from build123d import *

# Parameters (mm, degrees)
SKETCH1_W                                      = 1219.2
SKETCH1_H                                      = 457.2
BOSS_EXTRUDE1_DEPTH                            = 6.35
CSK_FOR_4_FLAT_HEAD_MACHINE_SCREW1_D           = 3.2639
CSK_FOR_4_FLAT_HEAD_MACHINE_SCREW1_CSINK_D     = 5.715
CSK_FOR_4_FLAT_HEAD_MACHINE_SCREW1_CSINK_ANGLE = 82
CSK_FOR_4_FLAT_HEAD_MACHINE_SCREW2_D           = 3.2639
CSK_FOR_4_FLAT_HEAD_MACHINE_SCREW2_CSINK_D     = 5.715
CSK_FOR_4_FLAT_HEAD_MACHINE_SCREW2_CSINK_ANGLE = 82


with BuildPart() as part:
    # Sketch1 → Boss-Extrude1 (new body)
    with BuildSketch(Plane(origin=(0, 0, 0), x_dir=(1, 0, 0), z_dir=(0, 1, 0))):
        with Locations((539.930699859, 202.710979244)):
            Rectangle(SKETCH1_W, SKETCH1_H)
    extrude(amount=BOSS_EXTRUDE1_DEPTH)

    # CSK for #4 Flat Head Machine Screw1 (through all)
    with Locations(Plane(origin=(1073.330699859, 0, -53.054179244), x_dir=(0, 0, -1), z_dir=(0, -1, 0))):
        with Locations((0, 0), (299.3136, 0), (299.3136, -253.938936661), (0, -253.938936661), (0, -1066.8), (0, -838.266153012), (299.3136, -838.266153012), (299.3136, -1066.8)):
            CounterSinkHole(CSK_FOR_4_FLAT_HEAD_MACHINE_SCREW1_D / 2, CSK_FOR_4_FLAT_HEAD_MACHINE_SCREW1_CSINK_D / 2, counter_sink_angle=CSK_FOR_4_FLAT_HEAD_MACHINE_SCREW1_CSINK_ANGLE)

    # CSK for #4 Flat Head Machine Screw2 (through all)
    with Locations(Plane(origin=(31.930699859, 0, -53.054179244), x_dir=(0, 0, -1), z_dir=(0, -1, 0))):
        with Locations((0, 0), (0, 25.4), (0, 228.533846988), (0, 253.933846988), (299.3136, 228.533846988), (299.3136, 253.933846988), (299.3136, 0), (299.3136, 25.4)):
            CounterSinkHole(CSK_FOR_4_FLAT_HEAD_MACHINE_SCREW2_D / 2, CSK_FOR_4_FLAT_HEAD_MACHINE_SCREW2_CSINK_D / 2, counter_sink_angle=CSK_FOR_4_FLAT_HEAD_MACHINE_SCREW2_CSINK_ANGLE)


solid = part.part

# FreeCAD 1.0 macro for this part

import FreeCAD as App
import Part
import Sketcher
Q = App.Units.Quantity

doc = App.newDocument("Part")
body = doc.addObject("PartDesign::Body", "Body")

# Sketch on XZ plane
sketch1 = body.newObject("Sketcher::SketchObject", "Sketch")
sketch1.AttachmentSupport = (doc.getObject("XZ_Plane"), [""])
sketch1.MapMode = "FlatFace"
sketch1.addGeometry(Part.LineSegment(App.Vector(-69.6693, -431.310979, 0), App.Vector(-69.6693, 25.889021, 0)), False)
sketch1.addGeometry(Part.LineSegment(App.Vector(-69.6693, 25.889021, 0), App.Vector(1149.5307, 25.889021, 0)), False)
sketch1.addGeometry(Part.LineSegment(App.Vector(1149.5307, 25.889021, 0), App.Vector(1149.5307, -431.310979, 0)), False)
sketch1.addGeometry(Part.LineSegment(App.Vector(1149.5307, -431.310979, 0), App.Vector(-69.6693, -431.310979, 0)), False)
sketch1.addConstraint(Sketcher.Constraint("Coincident", 0, 2, 1, 1))
sketch1.addConstraint(Sketcher.Constraint("Coincident", 1, 2, 2, 1))
sketch1.addConstraint(Sketcher.Constraint("Coincident", 2, 2, 3, 1))
sketch1.addConstraint(Sketcher.Constraint("Coincident", 3, 2, 0, 1))
sketch1.addConstraint(Sketcher.Constraint("Vertical", 0))
sketch1.addConstraint(Sketcher.Constraint("Horizontal", 1))
sketch1.addConstraint(Sketcher.Constraint("Vertical", 2))
sketch1.addConstraint(Sketcher.Constraint("Horizontal", 3))
sketch1.addConstraint(Sketcher.Constraint("DistanceX", 1, 1, 1, 2, Q("48 in")))
sketch1.addConstraint(Sketcher.Constraint("DistanceY", 0, 1, 0, 2, Q("18 in")))
sketch1.addConstraint(Sketcher.Constraint("DistanceX", 0, 2, -1, 1, Q("69.6693 mm")))
sketch1.addConstraint(Sketcher.Constraint("DistanceY", -1, 1, 0, 2, Q("25.889021 mm")))
pad1 = body.newObject("PartDesign::Pad", "Pad")
pad1.Profile = sketch1
pad1.Length = Q("0.25 in")
pad1.Reversed = True

# Sketch on XZ plane
sketch2 = body.newObject("Sketcher::SketchObject", "Sketch001")
sketch2.AttachmentSupport = (doc.getObject("XZ_Plane"), [""])
sketch2.MapMode = "FlatFace"
sketch2.addGeometry(Part.Circle(App.Vector(1073.3307, -53.054179, 0), App.Vector(0, 0, 1), 1.63195), False)
sketch2.addGeometry(Part.Circle(App.Vector(1073.3307, -352.367779, 0), App.Vector(0, 0, 1), 1.63195), False)
sketch2.addGeometry(Part.Circle(App.Vector(819.391763, -352.367779, 0), App.Vector(0, 0, 1), 1.63195), False)
sketch2.addGeometry(Part.Circle(App.Vector(819.391763, -53.054179, 0), App.Vector(0, 0, 1), 1.63195), False)
sketch2.addGeometry(Part.Circle(App.Vector(6.5307, -53.054179, 0), App.Vector(0, 0, 1), 1.63195), False)
sketch2.addGeometry(Part.Circle(App.Vector(235.064547, -53.054179, 0), App.Vector(0, 0, 1), 1.63195), False)
sketch2.addGeometry(Part.Circle(App.Vector(235.064547, -352.367779, 0), App.Vector(0, 0, 1), 1.63195), False)
sketch2.addGeometry(Part.Circle(App.Vector(6.5307, -352.367779, 0), App.Vector(0, 0, 1), 1.63195), False)
sketch2.addConstraint(Sketcher.Constraint("Equal", 0, 1))
sketch2.addConstraint(Sketcher.Constraint("Equal", 1, 2))
sketch2.addConstraint(Sketcher.Constraint("Equal", 2, 3))
sketch2.addConstraint(Sketcher.Constraint("Equal", 3, 4))
sketch2.addConstraint(Sketcher.Constraint("Equal", 4, 5))
sketch2.addConstraint(Sketcher.Constraint("Equal", 5, 6))
sketch2.addConstraint(Sketcher.Constraint("Equal", 6, 7))
sketch2.addConstraint(Sketcher.Constraint("Horizontal", 1, 3, 2, 3))
sketch2.addConstraint(Sketcher.Constraint("Horizontal", 0, 3, 3, 3))
sketch2.addConstraint(Sketcher.Constraint("Horizontal", 3, 3, 4, 3))
sketch2.addConstraint(Sketcher.Constraint("Horizontal", 4, 3, 5, 3))
sketch2.addConstraint(Sketcher.Constraint("Horizontal", 2, 3, 6, 3))
sketch2.addConstraint(Sketcher.Constraint("Horizontal", 6, 3, 7, 3))
sketch2.addConstraint(Sketcher.Constraint("Vertical", 0, 3, 1, 3))
sketch2.addConstraint(Sketcher.Constraint("Vertical", 2, 3, 3, 3))
sketch2.addConstraint(Sketcher.Constraint("Vertical", 5, 3, 6, 3))
sketch2.addConstraint(Sketcher.Constraint("Vertical", 4, 3, 7, 3))
sketch2.addConstraint(Sketcher.Constraint("DistanceX", 4, 3, 0, 3, Q("42 in")))
sketch2.addConstraint(Sketcher.Constraint("Diameter", 0, Q("0.1285 in")))
sketch2.addConstraint(Sketcher.Constraint("DistanceY", 1, 3, 0, 3, Q("11.784 in")))
sketch2.addConstraint(Sketcher.Constraint("DistanceX", -1, 1, 0, 3, Q("1073.3307 mm")))
sketch2.addConstraint(Sketcher.Constraint("DistanceY", 0, 3, -1, 1, Q("53.054179 mm")))
sketch2.addConstraint(Sketcher.Constraint("DistanceX", -1, 1, 2, 3, Q("819.391763 mm")))
sketch2.addConstraint(Sketcher.Constraint("DistanceX", -1, 1, 5, 3, Q("235.064547 mm")))
doc.recompute()
hole = body.newObject("PartDesign::Hole", "Hole")
hole.Profile = sketch2
hole.ThreadType = "None"
hole.Diameter = Q("0.1285 in")
hole.DepthType = "ThroughAll"
hole.HoleCutType = "Countersink"
hole.HoleCutDiameter = Q("0.225 in")
hole.HoleCutCountersinkAngle = 82

# Sketch on XZ plane
sketch3 = body.newObject("Sketcher::SketchObject", "Sketch002")
sketch3.AttachmentSupport = (doc.getObject("XZ_Plane"), [""])
sketch3.MapMode = "FlatFace"
sketch3.addGeometry(Part.Circle(App.Vector(31.9307, -53.054179, 0), App.Vector(0, 0, 1), 1.63195), False)
sketch3.addGeometry(Part.Circle(App.Vector(57.3307, -53.054179, 0), App.Vector(0, 0, 1), 1.63195), False)
sketch3.addGeometry(Part.Circle(App.Vector(260.464547, -53.054179, 0), App.Vector(0, 0, 1), 1.63195), False)
sketch3.addGeometry(Part.Circle(App.Vector(285.864547, -53.054179, 0), App.Vector(0, 0, 1), 1.63195), False)
sketch3.addGeometry(Part.Circle(App.Vector(260.464547, -352.367779, 0), App.Vector(0, 0, 1), 1.63195), False)
sketch3.addGeometry(Part.Circle(App.Vector(285.864547, -352.367779, 0), App.Vector(0, 0, 1), 1.63195), False)
sketch3.addGeometry(Part.Circle(App.Vector(31.9307, -352.367779, 0), App.Vector(0, 0, 1), 1.63195), False)
sketch3.addGeometry(Part.Circle(App.Vector(57.3307, -352.367779, 0), App.Vector(0, 0, 1), 1.63195), False)
sketch3.addConstraint(Sketcher.Constraint("Equal", 0, 1))
sketch3.addConstraint(Sketcher.Constraint("Equal", 1, 2))
sketch3.addConstraint(Sketcher.Constraint("Equal", 2, 3))
sketch3.addConstraint(Sketcher.Constraint("Equal", 3, 4))
sketch3.addConstraint(Sketcher.Constraint("Equal", 4, 5))
sketch3.addConstraint(Sketcher.Constraint("Equal", 5, 6))
sketch3.addConstraint(Sketcher.Constraint("Equal", 6, 7))
sketch3.addConstraint(Sketcher.Constraint("Horizontal", 0, 3, 1, 3))
sketch3.addConstraint(Sketcher.Constraint("Horizontal", 1, 3, 2, 3))
sketch3.addConstraint(Sketcher.Constraint("Horizontal", 2, 3, 3, 3))
sketch3.addConstraint(Sketcher.Constraint("Horizontal", 4, 3, 5, 3))
sketch3.addConstraint(Sketcher.Constraint("Horizontal", 5, 3, 6, 3))
sketch3.addConstraint(Sketcher.Constraint("Horizontal", 6, 3, 7, 3))
sketch3.addConstraint(Sketcher.Constraint("Vertical", 2, 3, 4, 3))
sketch3.addConstraint(Sketcher.Constraint("Vertical", 3, 3, 5, 3))
sketch3.addConstraint(Sketcher.Constraint("Vertical", 0, 3, 6, 3))
sketch3.addConstraint(Sketcher.Constraint("Vertical", 1, 3, 7, 3))
sketch3.addConstraint(Sketcher.Constraint("DistanceX", 0, 3, 1, 3, Q("1 in")))
sketch3.addConstraint(Sketcher.Constraint("DistanceX", 2, 3, 3, 3, Q("1 in")))
sketch3.addConstraint(Sketcher.Constraint("Diameter", 0, Q("0.1285 in")))
sketch3.addConstraint(Sketcher.Constraint("DistanceY", 4, 3, 2, 3, Q("11.784 in")))
sketch3.addConstraint(Sketcher.Constraint("DistanceX", -1, 1, 0, 3, Q("31.9307 mm")))
sketch3.addConstraint(Sketcher.Constraint("DistanceY", 0, 3, -1, 1, Q("53.054179 mm")))
sketch3.addConstraint(Sketcher.Constraint("DistanceX", -1, 1, 2, 3, Q("260.464547 mm")))
doc.recompute()
hole2 = body.newObject("PartDesign::Hole", "Hole001")
hole2.Profile = sketch3
hole2.ThreadType = "None"
hole2.Diameter = Q("0.1285 in")
hole2.DepthType = "ThroughAll"
hole2.HoleCutType = "Countersink"
hole2.HoleCutDiameter = Q("0.225 in")
hole2.HoleCutCountersinkAngle = 82

doc.recompute()
